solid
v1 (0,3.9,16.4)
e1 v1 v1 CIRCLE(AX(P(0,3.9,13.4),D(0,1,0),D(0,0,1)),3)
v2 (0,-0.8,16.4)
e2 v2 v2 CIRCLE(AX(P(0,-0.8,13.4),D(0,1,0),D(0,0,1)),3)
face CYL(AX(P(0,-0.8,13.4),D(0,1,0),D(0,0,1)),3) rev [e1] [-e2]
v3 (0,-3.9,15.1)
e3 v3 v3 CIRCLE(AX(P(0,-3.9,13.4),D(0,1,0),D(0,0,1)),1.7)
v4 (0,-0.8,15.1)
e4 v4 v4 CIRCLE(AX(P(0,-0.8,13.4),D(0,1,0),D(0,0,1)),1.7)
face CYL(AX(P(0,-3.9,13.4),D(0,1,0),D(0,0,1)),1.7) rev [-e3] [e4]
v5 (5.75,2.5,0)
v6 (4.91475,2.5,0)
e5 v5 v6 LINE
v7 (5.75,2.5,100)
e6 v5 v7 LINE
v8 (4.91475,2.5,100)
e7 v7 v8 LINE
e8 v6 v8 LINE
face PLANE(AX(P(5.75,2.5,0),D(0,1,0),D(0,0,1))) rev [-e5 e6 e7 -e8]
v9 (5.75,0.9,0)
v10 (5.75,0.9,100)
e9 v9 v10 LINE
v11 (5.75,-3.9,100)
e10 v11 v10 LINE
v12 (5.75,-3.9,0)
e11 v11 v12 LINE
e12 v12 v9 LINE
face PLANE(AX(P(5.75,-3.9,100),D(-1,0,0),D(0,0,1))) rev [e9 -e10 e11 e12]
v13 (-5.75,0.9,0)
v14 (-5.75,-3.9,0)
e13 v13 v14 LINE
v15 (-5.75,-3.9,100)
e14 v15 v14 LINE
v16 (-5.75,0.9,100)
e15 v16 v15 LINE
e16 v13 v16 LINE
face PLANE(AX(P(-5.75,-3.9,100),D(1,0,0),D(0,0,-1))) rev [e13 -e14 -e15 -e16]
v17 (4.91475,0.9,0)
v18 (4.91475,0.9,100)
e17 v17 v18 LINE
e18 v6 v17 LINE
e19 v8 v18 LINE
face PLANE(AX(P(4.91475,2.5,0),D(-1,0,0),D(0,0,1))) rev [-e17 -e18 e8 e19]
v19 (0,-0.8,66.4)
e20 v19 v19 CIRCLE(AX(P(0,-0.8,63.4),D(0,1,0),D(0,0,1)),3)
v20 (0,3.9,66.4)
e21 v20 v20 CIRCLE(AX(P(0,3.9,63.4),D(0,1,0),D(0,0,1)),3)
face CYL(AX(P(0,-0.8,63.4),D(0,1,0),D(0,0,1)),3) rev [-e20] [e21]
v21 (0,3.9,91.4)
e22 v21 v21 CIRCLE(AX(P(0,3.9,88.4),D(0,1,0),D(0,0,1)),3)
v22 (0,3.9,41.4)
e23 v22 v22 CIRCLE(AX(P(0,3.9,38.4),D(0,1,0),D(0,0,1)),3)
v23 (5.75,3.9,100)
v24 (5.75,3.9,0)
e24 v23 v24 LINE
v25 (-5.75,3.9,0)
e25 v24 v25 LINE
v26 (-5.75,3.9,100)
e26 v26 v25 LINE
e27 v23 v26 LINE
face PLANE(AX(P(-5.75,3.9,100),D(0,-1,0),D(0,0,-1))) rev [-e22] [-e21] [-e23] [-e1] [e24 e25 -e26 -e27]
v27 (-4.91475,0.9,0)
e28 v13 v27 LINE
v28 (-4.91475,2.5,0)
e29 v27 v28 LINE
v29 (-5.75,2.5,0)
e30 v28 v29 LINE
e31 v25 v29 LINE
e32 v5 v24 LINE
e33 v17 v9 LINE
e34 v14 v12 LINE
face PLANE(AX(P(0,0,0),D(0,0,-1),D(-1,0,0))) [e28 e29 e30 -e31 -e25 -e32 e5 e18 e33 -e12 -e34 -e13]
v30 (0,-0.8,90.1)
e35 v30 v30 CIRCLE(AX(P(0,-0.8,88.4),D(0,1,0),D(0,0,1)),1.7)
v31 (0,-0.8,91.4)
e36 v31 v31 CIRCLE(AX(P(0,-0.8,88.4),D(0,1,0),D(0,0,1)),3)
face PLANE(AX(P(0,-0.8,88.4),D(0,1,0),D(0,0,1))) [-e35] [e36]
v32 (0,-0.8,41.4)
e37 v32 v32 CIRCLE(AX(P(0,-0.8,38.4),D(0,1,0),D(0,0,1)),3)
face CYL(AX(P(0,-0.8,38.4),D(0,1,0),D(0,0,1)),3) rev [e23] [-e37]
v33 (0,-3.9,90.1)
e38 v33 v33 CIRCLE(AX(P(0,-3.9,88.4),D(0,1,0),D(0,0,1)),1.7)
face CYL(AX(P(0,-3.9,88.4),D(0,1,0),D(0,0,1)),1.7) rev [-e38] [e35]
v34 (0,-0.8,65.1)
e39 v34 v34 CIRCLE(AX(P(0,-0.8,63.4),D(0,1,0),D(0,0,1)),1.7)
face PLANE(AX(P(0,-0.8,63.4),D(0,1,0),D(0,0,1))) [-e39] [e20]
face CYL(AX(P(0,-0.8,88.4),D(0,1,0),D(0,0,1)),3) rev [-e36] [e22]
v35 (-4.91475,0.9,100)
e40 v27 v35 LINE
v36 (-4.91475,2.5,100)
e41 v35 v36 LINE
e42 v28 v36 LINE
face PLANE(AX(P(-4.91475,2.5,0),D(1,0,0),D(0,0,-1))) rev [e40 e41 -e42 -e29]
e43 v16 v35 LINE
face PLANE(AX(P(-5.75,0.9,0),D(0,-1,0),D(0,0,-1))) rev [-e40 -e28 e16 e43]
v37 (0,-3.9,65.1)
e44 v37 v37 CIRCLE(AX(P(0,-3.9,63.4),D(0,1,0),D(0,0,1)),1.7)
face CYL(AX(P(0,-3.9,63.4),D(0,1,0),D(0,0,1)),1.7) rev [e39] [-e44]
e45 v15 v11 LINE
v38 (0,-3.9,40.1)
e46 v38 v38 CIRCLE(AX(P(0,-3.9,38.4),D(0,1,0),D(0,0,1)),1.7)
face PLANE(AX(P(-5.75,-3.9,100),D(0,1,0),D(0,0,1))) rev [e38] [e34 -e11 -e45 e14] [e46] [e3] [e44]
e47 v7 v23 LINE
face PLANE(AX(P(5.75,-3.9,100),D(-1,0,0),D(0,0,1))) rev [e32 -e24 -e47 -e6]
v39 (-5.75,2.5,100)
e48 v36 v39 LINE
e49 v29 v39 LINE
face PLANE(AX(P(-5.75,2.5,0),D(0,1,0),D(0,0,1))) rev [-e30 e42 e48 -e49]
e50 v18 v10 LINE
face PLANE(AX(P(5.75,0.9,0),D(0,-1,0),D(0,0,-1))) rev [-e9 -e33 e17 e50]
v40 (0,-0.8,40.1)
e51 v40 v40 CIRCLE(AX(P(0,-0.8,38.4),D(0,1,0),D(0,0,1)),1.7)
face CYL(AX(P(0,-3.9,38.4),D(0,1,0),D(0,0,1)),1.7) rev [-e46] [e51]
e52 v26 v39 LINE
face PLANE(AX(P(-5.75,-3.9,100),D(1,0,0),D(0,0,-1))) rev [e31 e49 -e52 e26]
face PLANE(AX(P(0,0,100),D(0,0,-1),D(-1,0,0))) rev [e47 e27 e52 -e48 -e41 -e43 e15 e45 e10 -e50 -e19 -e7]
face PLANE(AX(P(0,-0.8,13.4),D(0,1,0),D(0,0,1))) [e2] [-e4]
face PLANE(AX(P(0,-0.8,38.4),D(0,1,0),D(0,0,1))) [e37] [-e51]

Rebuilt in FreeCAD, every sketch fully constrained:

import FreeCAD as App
import Part
import Sketcher

V = App.Vector
Q = App.Units.Quantity

doc = App.newDocument("Part")
params = doc.addObject("Spreadsheet::Sheet", "Params")
for row, (alias, value) in enumerate([
    ("sketch1_width", "11.5 mm"),
    ("sketch1_height", "7.8 mm"),
    ("pad1_length", "100 mm"),
    ("sketch2_height", "1.6 mm"),
    ("sketch3_diameter", "6 mm"),
    ("pocket2_length", "4.7 mm"),
    ("sketch4_diameter", "3.4 mm"),
], start=1):
    params.set(f"A{row}", alias)
    params.set(f"B{row}", "=" + value)
    params.setAlias(f"B{row}", alias)

body = doc.addObject("PartDesign::Body", "Body")

# Sketch on XY plane
sketch1 = body.newObject("Sketcher::SketchObject", "Sketch")
sketch1.AttachmentSupport = (doc.getObject("XY_Plane"), [""])
sketch1.MapMode = "FlatFace"
sketch1.addGeometry([
    Part.LineSegment(V(-6, 4, 0), V(-6, -4, 0)),
    Part.LineSegment(V(-6, -4, 0), V(6, -4, 0)),
    Part.LineSegment(V(6, -4, 0), V(6, 4, 0)),
    Part.LineSegment(V(6, 4, 0), V(-6, 4, 0)),
], False)
sketch1.addConstraint([
    Sketcher.Constraint("Coincident", 0, 2, 1, 1),
    Sketcher.Constraint("Coincident", 1, 2, 2, 1),
    Sketcher.Constraint("Coincident", 2, 2, 3, 1),
    Sketcher.Constraint("Coincident", 3, 2, 0, 1),
    Sketcher.Constraint("Vertical", 0),
    Sketcher.Constraint("Horizontal", 1),
    Sketcher.Constraint("Vertical", 2),
    Sketcher.Constraint("Horizontal", 3),
    Sketcher.Constraint("Symmetric", 0, 2, 2, 2, -1, 1),
    Sketcher.Constraint("DistanceX", 1, 1, 1, 2, Q("11.5 mm")),
    Sketcher.Constraint("DistanceY", 0, 2, 0, 1, Q("7.8 mm")),
])
sketch1.setExpression("Constraints[9]", "Params.sketch1_width")
sketch1.setExpression("Constraints[10]", "Params.sketch1_height")
pad1 = body.newObject("PartDesign::Pad", "Pad")
pad1.Profile = sketch1
pad1.setExpression("Length", "Params.pad1_length")

# Sketch on XY plane
sketch2 = body.newObject("Sketcher::SketchObject", "Sketch001")
sketch2.AttachmentSupport = (doc.getObject("XY_Plane"), [""])
sketch2.MapMode = "FlatFace"
sketch2.AttachmentOffset = App.Placement(V(0, 0, 100), App.Rotation())
sketch2.addGeometry([
    Part.LineSegment(V(4.9, 2.5, 0), V(4.9, 0.9, 0)),  # 0
    Part.LineSegment(V(4.9, 0.9, 0), V(5.8, 0.9, 0)),  # 1
    Part.LineSegment(V(5.8, 0.9, 0), V(5.8, 2.5, 0)),  # 2
    Part.LineSegment(V(5.8, 2.5, 0), V(4.9, 2.5, 0)),  # 3
    Part.LineSegment(V(-5.8, 2.5, 0), V(-5.8, 0.9, 0)),  # 4
    Part.LineSegment(V(-5.8, 0.9, 0), V(-4.9, 0.9, 0)),  # 5
    Part.LineSegment(V(-4.9, 0.9, 0), V(-4.9, 2.5, 0)),  # 6
    Part.LineSegment(V(-4.9, 2.5, 0), V(-5.8, 2.5, 0)),  # 7
], False)
sketch2.addConstraint([
    Sketcher.Constraint("Coincident", 0, 2, 1, 1),
    Sketcher.Constraint("Coincident", 1, 2, 2, 1),
    Sketcher.Constraint("Coincident", 2, 2, 3, 1),
    Sketcher.Constraint("Coincident", 3, 2, 0, 1),
    Sketcher.Constraint("Coincident", 4, 2, 5, 1),
    Sketcher.Constraint("Coincident", 5, 2, 6, 1),
    Sketcher.Constraint("Coincident", 6, 2, 7, 1),
    Sketcher.Constraint("Coincident", 7, 2, 4, 1),
    Sketcher.Constraint("Vertical", 0),
    Sketcher.Constraint("Horizontal", 1),
    Sketcher.Constraint("Vertical", 2),
    Sketcher.Constraint("Horizontal", 3),
    Sketcher.Constraint("Vertical", 4),
    Sketcher.Constraint("Horizontal", 5),
    Sketcher.Constraint("Vertical", 6),
    Sketcher.Constraint("Horizontal", 7),
    Sketcher.Constraint("Symmetric", 1, 2, 4, 2, -2),
    Sketcher.Constraint("Symmetric", 3, 2, 6, 2, -2),
    Sketcher.Constraint("DistanceY", 0, 2, 0, 1, Q("1.6 mm")),
    Sketcher.Constraint("DistanceY", -1, 1, 0, 2, Q("0.9 mm")),
    Sketcher.Constraint("DistanceX", 4, 2, 1, 2, Q("11.5 mm")),
    Sketcher.Constraint("DistanceX", 1, 1, 1, 2, Q("0.83525 mm")),
])
sketch2.setExpression("Constraints[18]", "Params.sketch2_height")
pocket1 = body.newObject("PartDesign::Pocket", "Pocket")
pocket1.Profile = sketch2
pocket1.Type = "ThroughAll"

# Sketch on XZ plane
sketch3 = body.newObject("Sketcher::SketchObject", "Sketch002")
sketch3.AttachmentSupport = (doc.getObject("XZ_Plane"), [""])
sketch3.MapMode = "FlatFace"
sketch3.AttachmentOffset = App.Placement(V(0, 0, -3.9), App.Rotation())
sketch3.addGeometry([
    Part.Circle(V(0, 88.4, 0), V(0, 0, 1), 3),  # 0
    Part.Circle(V(0, 63.4, 0), V(0, 0, 1), 3),  # 1
    Part.Circle(V(0, 38.4, 0), V(0, 0, 1), 3),  # 2
    Part.Circle(V(0, 13.4, 0), V(0, 0, 1), 3),  # 3
    Part.Circle(V(0, -11.6, 0), V(0, 0, 1), 3),  # 4
    Part.Circle(V(0, -36.6, 0), V(0, 0, 1), 3),  # 5
    Part.Circle(V(0, -61.6, 0), V(0, 0, 1), 3),  # 6
    Part.Circle(V(0, -86.6, 0), V(0, 0, 1), 3),  # 7
    Part.Circle(V(0, -111.6, 0), V(0, 0, 1), 3),  # 8
    Part.Circle(V(0, -136.6, 0), V(0, 0, 1), 3),  # 9
    Part.Circle(V(0, -161.6, 0), V(0, 0, 1), 3),  # 10
    Part.Circle(V(0, -186.6, 0), V(0, 0, 1), 3),  # 11
    Part.Circle(V(0, -211.6, 0), V(0, 0, 1), 3),  # 12
    Part.Circle(V(0, -236.6, 0), V(0, 0, 1), 3),  # 13
    Part.Circle(V(0, -261.6, 0), V(0, 0, 1), 3),  # 14
    Part.Circle(V(0, -286.6, 0), V(0, 0, 1), 3),  # 15
    Part.Circle(V(0, -311.6, 0), V(0, 0, 1), 3),  # 16
    Part.Circle(V(0, -336.6, 0), V(0, 0, 1), 3),  # 17
    Part.Circle(V(0, -361.6, 0), V(0, 0, 1), 3),  # 18
    Part.Circle(V(0, -386.6, 0), V(0, 0, 1), 3),  # 19
    Part.Circle(V(0, -411.6, 0), V(0, 0, 1), 3),  # 20
    Part.Circle(V(0, -436.6, 0), V(0, 0, 1), 3),  # 21
    Part.Circle(V(0, -461.6, 0), V(0, 0, 1), 3),  # 22
    Part.Circle(V(0, -486.6, 0), V(0, 0, 1), 3),  # 23
    Part.Circle(V(0, -511.6, 0), V(0, 0, 1), 3),  # 24
], False)
sketch3.addConstraint([
    Sketcher.Constraint("Equal", 0, 1),
    Sketcher.Constraint("Equal", 1, 2),
    Sketcher.Constraint("Equal", 2, 3),
    Sketcher.Constraint("Equal", 3, 4),
    Sketcher.Constraint("Equal", 4, 5),
    Sketcher.Constraint("Equal", 5, 6),
    Sketcher.Constraint("Equal", 6, 7),
    Sketcher.Constraint("Equal", 7, 8),
    Sketcher.Constraint("Equal", 8, 9),
    Sketcher.Constraint("Equal", 9, 10),
    Sketcher.Constraint("Equal", 10, 11),
    Sketcher.Constraint("Equal", 11, 12),
    Sketcher.Constraint("Equal", 12, 13),
    Sketcher.Constraint("Equal", 13, 14),
    Sketcher.Constraint("Equal", 14, 15),
    Sketcher.Constraint("Equal", 15, 16),
    Sketcher.Constraint("Equal", 16, 17),
    Sketcher.Constraint("Equal", 17, 18),
    Sketcher.Constraint("Equal", 18, 19),
    Sketcher.Constraint("Equal", 19, 20),
    Sketcher.Constraint("Equal", 20, 21),
    Sketcher.Constraint("Equal", 21, 22),
    Sketcher.Constraint("Equal", 22, 23),
    Sketcher.Constraint("Equal", 23, 24),
    Sketcher.Constraint("PointOnObject", 0, 3, -2),
    Sketcher.Constraint("PointOnObject", 1, 3, -2),
    Sketcher.Constraint("PointOnObject", 2, 3, -2),
    Sketcher.Constraint("PointOnObject", 3, 3, -2),
    Sketcher.Constraint("PointOnObject", 4, 3, -2),
    Sketcher.Constraint("PointOnObject", 5, 3, -2),
    Sketcher.Constraint("PointOnObject", 6, 3, -2),
    Sketcher.Constraint("PointOnObject", 7, 3, -2),
    Sketcher.Constraint("PointOnObject", 8, 3, -2),
    Sketcher.Constraint("PointOnObject", 9, 3, -2),
    Sketcher.Constraint("PointOnObject", 10, 3, -2),
    Sketcher.Constraint("PointOnObject", 11, 3, -2),
    Sketcher.Constraint("PointOnObject", 12, 3, -2),
    Sketcher.Constraint("PointOnObject", 13, 3, -2),
    Sketcher.Constraint("PointOnObject", 14, 3, -2),
    Sketcher.Constraint("PointOnObject", 15, 3, -2),
    Sketcher.Constraint("PointOnObject", 16, 3, -2),
    Sketcher.Constraint("PointOnObject", 17, 3, -2),
    Sketcher.Constraint("PointOnObject", 18, 3, -2),
    Sketcher.Constraint("PointOnObject", 19, 3, -2),
    Sketcher.Constraint("PointOnObject", 20, 3, -2),
    Sketcher.Constraint("PointOnObject", 21, 3, -2),
    Sketcher.Constraint("PointOnObject", 22, 3, -2),
    Sketcher.Constraint("PointOnObject", 23, 3, -2),
    Sketcher.Constraint("PointOnObject", 24, 3, -2),
    Sketcher.Constraint("Diameter", 0, Q("6 mm")),
    Sketcher.Constraint("DistanceY", 1, 3, 0, 3, Q("25 mm")),
    Sketcher.Constraint("DistanceY", 2, 3, 1, 3, Q("25 mm")),
    Sketcher.Constraint("DistanceY", 3, 3, 2, 3, Q("25 mm")),
    Sketcher.Constraint("DistanceY", 4, 3, 3, 3, Q("25 mm")),
    Sketcher.Constraint("DistanceY", 5, 3, 4, 3, Q("25 mm")),
    Sketcher.Constraint("DistanceY", 6, 3, 5, 3, Q("25 mm")),
    Sketcher.Constraint("DistanceY", 7, 3, 6, 3, Q("25 mm")),
    Sketcher.Constraint("DistanceY", 8, 3, 7, 3, Q("25 mm")),
    Sketcher.Constraint("DistanceY", 9, 3, 8, 3, Q("25 mm")),
    Sketcher.Constraint("DistanceY", 10, 3, 9, 3, Q("25 mm")),
    Sketcher.Constraint("DistanceY", 11, 3, 10, 3, Q("25 mm")),
    Sketcher.Constraint("DistanceY", 12, 3, 11, 3, Q("25 mm")),
    Sketcher.Constraint("DistanceY", 13, 3, 12, 3, Q("25 mm")),
    Sketcher.Constraint("DistanceY", 14, 3, 13, 3, Q("25 mm")),
    Sketcher.Constraint("DistanceY", 15, 3, 14, 3, Q("25 mm")),
    Sketcher.Constraint("DistanceY", 16, 3, 15, 3, Q("25 mm")),
    Sketcher.Constraint("DistanceY", 17, 3, 16, 3, Q("25 mm")),
    Sketcher.Constraint("DistanceY", 18, 3, 17, 3, Q("25 mm")),
    Sketcher.Constraint("DistanceY", 19, 3, 18, 3, Q("25 mm")),
    Sketcher.Constraint("DistanceY", 20, 3, 19, 3, Q("25 mm")),
    Sketcher.Constraint("DistanceY", 21, 3, 20, 3, Q("25 mm")),
    Sketcher.Constraint("DistanceY", 22, 3, 21, 3, Q("25 mm")),
    Sketcher.Constraint("DistanceY", 23, 3, 22, 3, Q("25 mm")),
    Sketcher.Constraint("DistanceY", 24, 3, 23, 3, Q("25 mm")),
    Sketcher.Constraint("DistanceY", -1, 1, 0, 3, Q("88.4 mm")),
])
sketch3.setExpression("Constraints[49]", "Params.sketch3_diameter")
pocket2 = body.newObject("PartDesign::Pocket", "Pocket001")
pocket2.Profile = sketch3
pocket2.setExpression("Length", "Params.pocket2_length")
pocket2.Reversed = True

# Sketch on XZ plane
sketch4 = body.newObject("Sketcher::SketchObject", "Sketch003")
sketch4.AttachmentSupport = (doc.getObject("XZ_Plane"), [""])
sketch4.MapMode = "FlatFace"
sketch4.AttachmentOffset = App.Placement(V(0, 0, 0.8), App.Rotation())
sketch4.addGeometry([
    Part.Circle(V(0, 88.4, 0), V(0, 0, 1), 1.7),  # 0
    Part.Circle(V(0, 63.4, 0), V(0, 0, 1), 1.7),  # 1
    Part.Circle(V(0, 38.4, 0), V(0, 0, 1), 1.7),  # 2
    Part.Circle(V(0, 13.4, 0), V(0, 0, 1), 1.7),  # 3
    Part.Circle(V(0, -11.6, 0), V(0, 0, 1), 1.7),  # 4
    Part.Circle(V(0, -36.6, 0), V(0, 0, 1), 1.7),  # 5
    Part.Circle(V(0, -61.6, 0), V(0, 0, 1), 1.7),  # 6
    Part.Circle(V(0, -86.6, 0), V(0, 0, 1), 1.7),  # 7
    Part.Circle(V(0, -111.6, 0), V(0, 0, 1), 1.7),  # 8
    Part.Circle(V(0, -136.6, 0), V(0, 0, 1), 1.7),  # 9
    Part.Circle(V(0, -161.6, 0), V(0, 0, 1), 1.7),  # 10
    Part.Circle(V(0, -186.6, 0), V(0, 0, 1), 1.7),  # 11
    Part.Circle(V(0, -211.6, 0), V(0, 0, 1), 1.7),  # 12
    Part.Circle(V(0, -236.6, 0), V(0, 0, 1), 1.7),  # 13
    Part.Circle(V(0, -261.6, 0), V(0, 0, 1), 1.7),  # 14
    Part.Circle(V(0, -286.6, 0), V(0, 0, 1), 1.7),  # 15
    Part.Circle(V(0, -311.6, 0), V(0, 0, 1), 1.7),  # 16
    Part.Circle(V(0, -336.6, 0), V(0, 0, 1), 1.7),  # 17
    Part.Circle(V(0, -361.6, 0), V(0, 0, 1), 1.7),  # 18
    Part.Circle(V(0, -386.6, 0), V(0, 0, 1), 1.7),  # 19
    Part.Circle(V(0, -411.6, 0), V(0, 0, 1), 1.7),  # 20
    Part.Circle(V(0, -436.6, 0), V(0, 0, 1), 1.7),  # 21
    Part.Circle(V(0, -461.6, 0), V(0, 0, 1), 1.7),  # 22
    Part.Circle(V(0, -486.6, 0), V(0, 0, 1), 1.7),  # 23
    Part.Circle(V(0, -511.6, 0), V(0, 0, 1), 1.7),  # 24
], False)
sketch4.addConstraint([
    Sketcher.Constraint("Equal", 0, 1),
    Sketcher.Constraint("Equal", 1, 2),
    Sketcher.Constraint("Equal", 2, 3),
    Sketcher.Constraint("Equal", 3, 4),
    Sketcher.Constraint("Equal", 4, 5),
    Sketcher.Constraint("Equal", 5, 6),
    Sketcher.Constraint("Equal", 6, 7),
    Sketcher.Constraint("Equal", 7, 8),
    Sketcher.Constraint("Equal", 8, 9),
    Sketcher.Constraint("Equal", 9, 10),
    Sketcher.Constraint("Equal", 10, 11),
    Sketcher.Constraint("Equal", 11, 12),
    Sketcher.Constraint("Equal", 12, 13),
    Sketcher.Constraint("Equal", 13, 14),
    Sketcher.Constraint("Equal", 14, 15),
    Sketcher.Constraint("Equal", 15, 16),
    Sketcher.Constraint("Equal", 16, 17),
    Sketcher.Constraint("Equal", 17, 18),
    Sketcher.Constraint("Equal", 18, 19),
    Sketcher.Constraint("Equal", 19, 20),
    Sketcher.Constraint("Equal", 20, 21),
    Sketcher.Constraint("Equal", 21, 22),
    Sketcher.Constraint("Equal", 22, 23),
    Sketcher.Constraint("Equal", 23, 24),
    Sketcher.Constraint("PointOnObject", 0, 3, -2),
    Sketcher.Constraint("PointOnObject", 1, 3, -2),
    Sketcher.Constraint("PointOnObject", 2, 3, -2),
    Sketcher.Constraint("PointOnObject", 3, 3, -2),
    Sketcher.Constraint("PointOnObject", 4, 3, -2),
    Sketcher.Constraint("PointOnObject", 5, 3, -2),
    Sketcher.Constraint("PointOnObject", 6, 3, -2),
    Sketcher.Constraint("PointOnObject", 7, 3, -2),
    Sketcher.Constraint("PointOnObject", 8, 3, -2),
    Sketcher.Constraint("PointOnObject", 9, 3, -2),
    Sketcher.Constraint("PointOnObject", 10, 3, -2),
    Sketcher.Constraint("PointOnObject", 11, 3, -2),
    Sketcher.Constraint("PointOnObject", 12, 3, -2),
    Sketcher.Constraint("PointOnObject", 13, 3, -2),
    Sketcher.Constraint("PointOnObject", 14, 3, -2),
    Sketcher.Constraint("PointOnObject", 15, 3, -2),
    Sketcher.Constraint("PointOnObject", 16, 3, -2),
    Sketcher.Constraint("PointOnObject", 17, 3, -2),
    Sketcher.Constraint("PointOnObject", 18, 3, -2),
    Sketcher.Constraint("PointOnObject", 19, 3, -2),
    Sketcher.Constraint("PointOnObject", 20, 3, -2),
    Sketcher.Constraint("PointOnObject", 21, 3, -2),
    Sketcher.Constraint("PointOnObject", 22, 3, -2),
    Sketcher.Constraint("PointOnObject", 23, 3, -2),
    Sketcher.Constraint("PointOnObject", 24, 3, -2),
    Sketcher.Constraint("Diameter", 0, Q("3.4 mm")),
    Sketcher.Constraint("DistanceY", 1, 3, 0, 3, Q("25 mm")),
    Sketcher.Constraint("DistanceY", 2, 3, 1, 3, Q("25 mm")),
    Sketcher.Constraint("DistanceY", 3, 3, 2, 3, Q("25 mm")),
    Sketcher.Constraint("DistanceY", 4, 3, 3, 3, Q("25 mm")),
    Sketcher.Constraint("DistanceY", 5, 3, 4, 3, Q("25 mm")),
    Sketcher.Constraint("DistanceY", 6, 3, 5, 3, Q("25 mm")),
    Sketcher.Constraint("DistanceY", 7, 3, 6, 3, Q("25 mm")),
    Sketcher.Constraint("DistanceY", 8, 3, 7, 3, Q("25 mm")),
    Sketcher.Constraint("DistanceY", 9, 3, 8, 3, Q("25 mm")),
    Sketcher.Constraint("DistanceY", 10, 3, 9, 3, Q("25 mm")),
    Sketcher.Constraint("DistanceY", 11, 3, 10, 3, Q("25 mm")),
    Sketcher.Constraint("DistanceY", 12, 3, 11, 3, Q("25 mm")),
    Sketcher.Constraint("DistanceY", 13, 3, 12, 3, Q("25 mm")),
    Sketcher.Constraint("DistanceY", 14, 3, 13, 3, Q("25 mm")),
    Sketcher.Constraint("DistanceY", 15, 3, 14, 3, Q("25 mm")),
    Sketcher.Constraint("DistanceY", 16, 3, 15, 3, Q("25 mm")),
    Sketcher.Constraint("DistanceY", 17, 3, 16, 3, Q("25 mm")),
    Sketcher.Constraint("DistanceY", 18, 3, 17, 3, Q("25 mm")),
    Sketcher.Constraint("DistanceY", 19, 3, 18, 3, Q("25 mm")),
    Sketcher.Constraint("DistanceY", 20, 3, 19, 3, Q("25 mm")),
    Sketcher.Constraint("DistanceY", 21, 3, 20, 3, Q("25 mm")),
    Sketcher.Constraint("DistanceY", 22, 3, 21, 3, Q("25 mm")),
    Sketcher.Constraint("DistanceY", 23, 3, 22, 3, Q("25 mm")),
    Sketcher.Constraint("DistanceY", 24, 3, 23, 3, Q("25 mm")),
    Sketcher.Constraint("DistanceY", -1, 1, 0, 3, Q("88.4 mm")),
])
sketch4.setExpression("Constraints[49]", "Params.sketch4_diameter")
pocket3 = body.newObject("PartDesign::Pocket", "Pocket002")
pocket3.Profile = sketch4
pocket3.Type = "ThroughAll"
pocket3.Reversed = True

doc.recompute()
